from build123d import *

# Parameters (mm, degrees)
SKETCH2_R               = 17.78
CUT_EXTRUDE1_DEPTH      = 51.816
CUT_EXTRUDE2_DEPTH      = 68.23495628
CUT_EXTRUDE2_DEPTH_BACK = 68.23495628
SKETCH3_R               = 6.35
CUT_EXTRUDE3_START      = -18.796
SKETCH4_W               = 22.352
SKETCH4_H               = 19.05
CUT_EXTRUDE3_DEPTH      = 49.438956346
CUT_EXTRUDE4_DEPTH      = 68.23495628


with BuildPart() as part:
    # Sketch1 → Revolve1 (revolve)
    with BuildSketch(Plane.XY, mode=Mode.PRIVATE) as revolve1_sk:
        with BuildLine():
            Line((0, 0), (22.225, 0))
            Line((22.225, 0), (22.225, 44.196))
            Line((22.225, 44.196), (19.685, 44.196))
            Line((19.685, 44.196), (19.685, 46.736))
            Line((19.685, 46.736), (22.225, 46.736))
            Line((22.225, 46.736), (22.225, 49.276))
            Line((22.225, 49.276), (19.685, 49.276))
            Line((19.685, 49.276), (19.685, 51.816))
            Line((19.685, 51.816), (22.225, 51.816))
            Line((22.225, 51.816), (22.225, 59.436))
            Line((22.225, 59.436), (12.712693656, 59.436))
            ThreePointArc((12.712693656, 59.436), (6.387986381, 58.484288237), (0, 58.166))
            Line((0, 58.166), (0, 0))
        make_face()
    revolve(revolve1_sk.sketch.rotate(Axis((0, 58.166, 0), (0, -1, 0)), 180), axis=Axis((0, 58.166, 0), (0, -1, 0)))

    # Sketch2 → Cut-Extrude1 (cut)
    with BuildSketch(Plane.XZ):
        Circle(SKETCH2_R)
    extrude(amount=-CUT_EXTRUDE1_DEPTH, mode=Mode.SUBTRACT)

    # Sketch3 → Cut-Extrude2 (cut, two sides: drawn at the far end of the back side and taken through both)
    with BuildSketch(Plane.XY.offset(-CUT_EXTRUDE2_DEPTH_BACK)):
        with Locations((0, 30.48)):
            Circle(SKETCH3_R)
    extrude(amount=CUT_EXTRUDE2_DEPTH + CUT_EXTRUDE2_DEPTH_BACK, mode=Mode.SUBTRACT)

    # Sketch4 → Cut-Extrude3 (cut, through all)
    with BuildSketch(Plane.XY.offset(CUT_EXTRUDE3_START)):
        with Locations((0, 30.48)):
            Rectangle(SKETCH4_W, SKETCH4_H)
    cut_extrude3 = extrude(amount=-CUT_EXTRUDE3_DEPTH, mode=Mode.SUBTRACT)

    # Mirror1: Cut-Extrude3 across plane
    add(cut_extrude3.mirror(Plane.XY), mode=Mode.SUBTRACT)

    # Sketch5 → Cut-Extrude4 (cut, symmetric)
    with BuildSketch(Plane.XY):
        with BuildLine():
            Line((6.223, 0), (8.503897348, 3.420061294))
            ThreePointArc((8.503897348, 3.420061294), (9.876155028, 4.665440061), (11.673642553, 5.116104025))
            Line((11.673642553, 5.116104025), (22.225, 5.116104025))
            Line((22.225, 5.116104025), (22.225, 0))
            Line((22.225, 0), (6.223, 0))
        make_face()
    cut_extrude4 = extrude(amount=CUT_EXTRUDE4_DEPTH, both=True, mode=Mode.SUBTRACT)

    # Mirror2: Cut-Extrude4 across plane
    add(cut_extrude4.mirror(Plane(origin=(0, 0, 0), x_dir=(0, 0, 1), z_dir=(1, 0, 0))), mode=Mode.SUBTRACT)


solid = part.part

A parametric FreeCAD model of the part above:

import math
import FreeCAD as App
import Part
import Sketcher

V = App.Vector
Q = App.Units.Quantity

doc = App.newDocument("Part")
body = doc.addObject("PartDesign::Body", "Body")

# Sketch on XY plane
sketch1 = body.newObject("Sketcher::SketchObject", "Sketch")
sketch1.AttachmentSupport = (doc.getObject("XY_Plane"), [""])
sketch1.MapMode = "FlatFace"
sketch1.addGeometry([
    Part.LineSegment(V(0, 0, 0), V(22.2, 0, 0)),  # 0
    Part.LineSegment(V(22.2, 0, 0), V(22.2, 44.2, 0)),  # 1
    Part.LineSegment(V(22.2, 44.2, 0), V(19.7, 44.2, 0)),  # 2
    Part.LineSegment(V(19.7, 44.2, 0), V(19.7, 46.7, 0)),  # 3
    Part.LineSegment(V(19.7, 46.7, 0), V(22.2, 46.7, 0)),  # 4
    Part.LineSegment(V(22.2, 46.7, 0), V(22.2, 49.3, 0)),  # 5
    Part.LineSegment(V(22.2, 49.3, 0), V(19.7, 49.3, 0)),  # 6
    Part.LineSegment(V(19.7, 49.3, 0), V(19.7, 51.8, 0)),  # 7
    Part.LineSegment(V(19.7, 51.8, 0), V(22.2, 51.8, 0)),  # 8
    Part.LineSegment(V(22.2, 51.8, 0), V(22.2, 59.4, 0)),  # 9
    Part.LineSegment(V(22.2, 59.4, 0), V(12.7, 59.4, 0)),  # 10
    Part.ArcOfCircle(Part.Circle(V(0, 122.4, 0), V(0, 0, 1), 64.3), math.radians(-90), math.radians(-78.59)),  # 11
    Part.LineSegment(V(0, 58.2, 0), V(0, 0, 0)),  # 12
], False)
sketch1.addConstraint([
    Sketcher.Constraint("Coincident", 0, 2, 1, 1),
    Sketcher.Constraint("Coincident", 1, 2, 2, 1),
    Sketcher.Constraint("Coincident", 2, 2, 3, 1),
    Sketcher.Constraint("Coincident", 3, 2, 4, 1),
    Sketcher.Constraint("Coincident", 4, 2, 5, 1),
    Sketcher.Constraint("Coincident", 5, 2, 6, 1),
    Sketcher.Constraint("Coincident", 6, 2, 7, 1),
    Sketcher.Constraint("Coincident", 7, 2, 8, 1),
    Sketcher.Constraint("Coincident", 8, 2, 9, 1),
    Sketcher.Constraint("Coincident", 9, 2, 10, 1),
    Sketcher.Constraint("Coincident", 10, 2, 11, 2),
    Sketcher.Constraint("Coincident", 11, 1, 12, 1),
    Sketcher.Constraint("Coincident", 12, 2, 0, 1),
    Sketcher.Constraint("Horizontal", 0),
    Sketcher.Constraint("Vertical", 1),
    Sketcher.Constraint("Horizontal", 2),
    Sketcher.Constraint("Vertical", 3),
    Sketcher.Constraint("Horizontal", 4),
    Sketcher.Constraint("Vertical", 5),
    Sketcher.Constraint("Horizontal", 6),
    Sketcher.Constraint("Vertical", 7),
    Sketcher.Constraint("Horizontal", 8),
    Sketcher.Constraint("Vertical", 9),
    Sketcher.Constraint("Horizontal", 10),
    Sketcher.Constraint("Vertical", 12),
    Sketcher.Constraint("Coincident", 12, 2, -1, 1),
    Sketcher.Constraint("PointOnObject", 11, 3, -2),
    Sketcher.Constraint("Vertical", 1, 2, 4, 2),
    Sketcher.Constraint("Vertical", 3, 2, 6, 2),
    Sketcher.Constraint("Vertical", 5, 2, 8, 2),
    Sketcher.Constraint("Equal", 8, 3),
    Sketcher.Constraint("Equal", 3, 5),
    Sketcher.Constraint("Equal", 5, 7),
    Sketcher.Constraint("Radius", 11, Q("2.53 in")),
    Sketcher.Constraint("DistanceX", 2, 2, 2, 1, Q("0.1 in")),
    Sketcher.Constraint("DistanceY", 9, 1, 9, 2, Q("0.3 in")),
    Sketcher.Constraint("DistanceY", 1, 1, 1, 2, Q("1.74 in")),
    Sketcher.Constraint("DistanceY", 12, 2, 12, 1, Q("2.29 in")),
    Sketcher.Constraint("DistanceX", 0, 1, 0, 2, Q("0.875 in")),
])
revolution = body.newObject("PartDesign::Revolution", "Revolution")
revolution.Profile = sketch1
revolution.ReferenceAxis = (sketch1, ["V_Axis"])
revolution.Angle = 360

# Sketch on XZ plane
sketch2 = body.newObject("Sketcher::SketchObject", "Sketch001")
sketch2.AttachmentSupport = (doc.getObject("XZ_Plane"), [""])
sketch2.MapMode = "FlatFace"
sketch2.addGeometry(Part.Circle(V(0, 0, 0), V(0, 0, 1), 18), False)
sketch2.addConstraint([
    Sketcher.Constraint("Coincident", 0, 3, -1, 1),
    Sketcher.Constraint("Diameter", 0, Q("1.4 in")),
])
pocket1 = body.newObject("PartDesign::Pocket", "Pocket")
pocket1.Profile = sketch2
pocket1.Length = Q("2.04 in")

# Sketch on XY plane
sketch3 = body.newObject("Sketcher::SketchObject", "Sketch002")
sketch3.AttachmentSupport = (doc.getObject("XY_Plane"), [""])
sketch3.MapMode = "FlatFace"
sketch3.addGeometry(Part.Circle(V(0, 30, 0), V(0, 0, 1), 6), False)
sketch3.addConstraint([
    Sketcher.Constraint("PointOnObject", 0, 3, -2),
    Sketcher.Constraint("Diameter", 0, Q("0.5 in")),
    Sketcher.Constraint("DistanceY", -1, 1, 0, 3, Q("1.2 in")),
])
pocket2 = body.newObject("PartDesign::Pocket", "Pocket001")
pocket2.Profile = sketch3
pocket2.Type = "ThroughAll"
pocket2.Midplane = True

# Sketch on XY plane
sketch4 = body.newObject("Sketcher::SketchObject", "Sketch003")
sketch4.AttachmentSupport = (doc.getObject("XY_Plane"), [""])
sketch4.MapMode = "FlatFace"
sketch4.AttachmentOffset = App.Placement(V(0, 0, -0.74 * 25.4), App.Rotation())
sketch4.addGeometry([
    Part.LineSegment(V(-11, 40, 0), V(-11, 21, 0)),
    Part.LineSegment(V(-11, 21, 0), V(11, 21, 0)),
    Part.LineSegment(V(11, 21, 0), V(11, 40, 0)),
    Part.LineSegment(V(11, 40, 0), V(-11, 40, 0)),
], False)
sketch4.addConstraint([
    Sketcher.Constraint("Coincident", 0, 2, 1, 1),
    Sketcher.Constraint("Coincident", 1, 2, 2, 1),
    Sketcher.Constraint("Coincident", 2, 2, 3, 1),
    Sketcher.Constraint("Coincident", 3, 2, 0, 1),
    Sketcher.Constraint("Vertical", 0),
    Sketcher.Constraint("Horizontal", 1),
    Sketcher.Constraint("Vertical", 2),
    Sketcher.Constraint("Horizontal", 3),
    Sketcher.Constraint("DistanceX", 1, 1, 1, 2, Q("0.88 in")),
    Sketcher.Constraint("DistanceY", 0, 2, 0, 1, Q("0.75 in")),
    Sketcher.Constraint("DistanceX", 0, 2, -1, 1, Q("0.44 in")),
    Sketcher.Constraint("DistanceY", -1, 1, 0, 2, Q("0.825 in")),
])
pocket3 = body.newObject("PartDesign::Pocket", "Pocket002")
pocket3.Profile = sketch4
pocket3.Type = "ThroughAll"
doc.recompute()

mirrored = body.newObject("PartDesign::Mirrored", "Mirrored")
mirrored.Originals = [pocket3]
mirrored.MirrorPlane = (doc.getObject("XY_Plane"), [""])
body.Tip = mirrored

# Sketch on XY plane
sketch5 = body.newObject("Sketcher::SketchObject", "Sketch004")
sketch5.AttachmentSupport = (doc.getObject("XY_Plane"), [""])
sketch5.MapMode = "FlatFace"
sketch5.addGeometry([
    Part.LineSegment(V(8.5, 3.4, 0), V(6.2, 0, 0)),  # 0
    Part.LineSegment(V(6.2, 0, 0), V(22.2, 0, 0)),  # 1
    Part.LineSegment(V(22.2, 0, 0), V(22.2, 5.1, 0)),  # 2
    Part.LineSegment(V(22.2, 5.1, 0), V(11.7, 5.1, 0)),  # 3
    Part.ArcOfCircle(Part.Circle(V(11.7, 1.3, 0), V(0, 0, 1), 3.8), math.radians(90), math.radians(146)),  # 4
], False)
sketch5.addConstraint([
    Sketcher.Constraint("Coincident", 0, 2, 1, 1),
    Sketcher.Constraint("Coincident", 1, 2, 2, 1),
    Sketcher.Constraint("Coincident", 2, 2, 3, 1),
    Sketcher.Constraint("Tangent", 3, 2, 4, 1),
    Sketcher.Constraint("Tangent", 4, 2, 0, 1),
    Sketcher.Constraint("Horizontal", 1),
    Sketcher.Constraint("Vertical", 2),
    Sketcher.Constraint("Horizontal", 3),
    Sketcher.Constraint("PointOnObject", 0, 2, -1),
    Sketcher.Constraint("Radius", 4, Q("0.15 in")),
    Sketcher.Constraint("DistanceX", 1, 1, 1, 2, Q("0.63 in")),
    Sketcher.Constraint("Angle", 0, Q("-123.7 deg")),
    Sketcher.Constraint("DistanceX", -1, 1, 0, 2, Q("0.245 in")),
    Sketcher.Constraint("DistanceX", 3, 2, 3, 1, Q("10.551357 mm")),
])
pocket4 = body.newObject("PartDesign::Pocket", "Pocket003")
pocket4.Profile = sketch5
pocket4.Length = 136.469913
pocket4.Midplane = True
doc.recompute()

mirrored2 = body.newObject("PartDesign::Mirrored", "Mirrored001")
mirrored2.Originals = [pocket4]
mirrored2.MirrorPlane = (doc.getObject("YZ_Plane"), [""])
body.Tip = mirrored2

doc.recompute()
